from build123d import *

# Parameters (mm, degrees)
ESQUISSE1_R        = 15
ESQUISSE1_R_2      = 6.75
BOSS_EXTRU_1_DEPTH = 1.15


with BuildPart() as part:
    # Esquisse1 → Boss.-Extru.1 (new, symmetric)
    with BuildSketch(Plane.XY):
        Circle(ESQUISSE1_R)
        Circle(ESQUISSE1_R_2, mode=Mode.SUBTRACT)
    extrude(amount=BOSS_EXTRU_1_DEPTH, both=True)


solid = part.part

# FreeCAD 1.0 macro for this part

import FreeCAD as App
import Part
import Sketcher

V = App.Vector
Q = App.Units.Quantity

doc = App.newDocument("Part")
params = doc.addObject("Spreadsheet::Sheet", "Params")
for row, (alias, value) in enumerate([
    ("sketch1_diameter", "30 mm"),
    ("sketch1_diameter2", "13.5 mm"),
    ("pad1_length", "2.3 mm"),
], start=1):
    params.set(f"A{row}", alias)
    params.set(f"B{row}", "=" + value)
    params.setAlias(f"B{row}", alias)

body = doc.addObject("PartDesign::Body", "Body")

sketch1 = doc.addObject("Sketcher::SketchObject", "Sketch")
body.addObject(sketch1)
sketch1.AttachmentSupport = (doc.XY_Plane, [""])
sketch1.MapMode = "FlatFace"
sketch1.addGeometry(Part.Circle(V(0, 0, 0), V(0, 0, 1), 15), False)
sketch1.addGeometry(Part.Circle(V(0, 0, 0), V(0, 0, 1), 7), False)
sketch1.addConstraint(Sketcher.Constraint("Coincident", 0, 3, -1, 1))
sketch1.addConstraint(Sketcher.Constraint("Coincident", 1, 3, -1, 1))
sketch1.addConstraint(Sketcher.Constraint("Diameter", 0, Q("30 mm")))
sketch1.addConstraint(Sketcher.Constraint("Diameter", 1, Q("13.5 mm")))
sketch1.setExpression("Constraints[2]", "Params.sketch1_diameter")
sketch1.setExpression("Constraints[3]", "Params.sketch1_diameter2")
pad1 = doc.addObject("PartDesign::Pad", "Pad")
body.addObject(pad1)
pad1.Profile = sketch1
pad1.setExpression("Length", "Params.pad1_length")
pad1.Midplane = True

doc.recompute()
